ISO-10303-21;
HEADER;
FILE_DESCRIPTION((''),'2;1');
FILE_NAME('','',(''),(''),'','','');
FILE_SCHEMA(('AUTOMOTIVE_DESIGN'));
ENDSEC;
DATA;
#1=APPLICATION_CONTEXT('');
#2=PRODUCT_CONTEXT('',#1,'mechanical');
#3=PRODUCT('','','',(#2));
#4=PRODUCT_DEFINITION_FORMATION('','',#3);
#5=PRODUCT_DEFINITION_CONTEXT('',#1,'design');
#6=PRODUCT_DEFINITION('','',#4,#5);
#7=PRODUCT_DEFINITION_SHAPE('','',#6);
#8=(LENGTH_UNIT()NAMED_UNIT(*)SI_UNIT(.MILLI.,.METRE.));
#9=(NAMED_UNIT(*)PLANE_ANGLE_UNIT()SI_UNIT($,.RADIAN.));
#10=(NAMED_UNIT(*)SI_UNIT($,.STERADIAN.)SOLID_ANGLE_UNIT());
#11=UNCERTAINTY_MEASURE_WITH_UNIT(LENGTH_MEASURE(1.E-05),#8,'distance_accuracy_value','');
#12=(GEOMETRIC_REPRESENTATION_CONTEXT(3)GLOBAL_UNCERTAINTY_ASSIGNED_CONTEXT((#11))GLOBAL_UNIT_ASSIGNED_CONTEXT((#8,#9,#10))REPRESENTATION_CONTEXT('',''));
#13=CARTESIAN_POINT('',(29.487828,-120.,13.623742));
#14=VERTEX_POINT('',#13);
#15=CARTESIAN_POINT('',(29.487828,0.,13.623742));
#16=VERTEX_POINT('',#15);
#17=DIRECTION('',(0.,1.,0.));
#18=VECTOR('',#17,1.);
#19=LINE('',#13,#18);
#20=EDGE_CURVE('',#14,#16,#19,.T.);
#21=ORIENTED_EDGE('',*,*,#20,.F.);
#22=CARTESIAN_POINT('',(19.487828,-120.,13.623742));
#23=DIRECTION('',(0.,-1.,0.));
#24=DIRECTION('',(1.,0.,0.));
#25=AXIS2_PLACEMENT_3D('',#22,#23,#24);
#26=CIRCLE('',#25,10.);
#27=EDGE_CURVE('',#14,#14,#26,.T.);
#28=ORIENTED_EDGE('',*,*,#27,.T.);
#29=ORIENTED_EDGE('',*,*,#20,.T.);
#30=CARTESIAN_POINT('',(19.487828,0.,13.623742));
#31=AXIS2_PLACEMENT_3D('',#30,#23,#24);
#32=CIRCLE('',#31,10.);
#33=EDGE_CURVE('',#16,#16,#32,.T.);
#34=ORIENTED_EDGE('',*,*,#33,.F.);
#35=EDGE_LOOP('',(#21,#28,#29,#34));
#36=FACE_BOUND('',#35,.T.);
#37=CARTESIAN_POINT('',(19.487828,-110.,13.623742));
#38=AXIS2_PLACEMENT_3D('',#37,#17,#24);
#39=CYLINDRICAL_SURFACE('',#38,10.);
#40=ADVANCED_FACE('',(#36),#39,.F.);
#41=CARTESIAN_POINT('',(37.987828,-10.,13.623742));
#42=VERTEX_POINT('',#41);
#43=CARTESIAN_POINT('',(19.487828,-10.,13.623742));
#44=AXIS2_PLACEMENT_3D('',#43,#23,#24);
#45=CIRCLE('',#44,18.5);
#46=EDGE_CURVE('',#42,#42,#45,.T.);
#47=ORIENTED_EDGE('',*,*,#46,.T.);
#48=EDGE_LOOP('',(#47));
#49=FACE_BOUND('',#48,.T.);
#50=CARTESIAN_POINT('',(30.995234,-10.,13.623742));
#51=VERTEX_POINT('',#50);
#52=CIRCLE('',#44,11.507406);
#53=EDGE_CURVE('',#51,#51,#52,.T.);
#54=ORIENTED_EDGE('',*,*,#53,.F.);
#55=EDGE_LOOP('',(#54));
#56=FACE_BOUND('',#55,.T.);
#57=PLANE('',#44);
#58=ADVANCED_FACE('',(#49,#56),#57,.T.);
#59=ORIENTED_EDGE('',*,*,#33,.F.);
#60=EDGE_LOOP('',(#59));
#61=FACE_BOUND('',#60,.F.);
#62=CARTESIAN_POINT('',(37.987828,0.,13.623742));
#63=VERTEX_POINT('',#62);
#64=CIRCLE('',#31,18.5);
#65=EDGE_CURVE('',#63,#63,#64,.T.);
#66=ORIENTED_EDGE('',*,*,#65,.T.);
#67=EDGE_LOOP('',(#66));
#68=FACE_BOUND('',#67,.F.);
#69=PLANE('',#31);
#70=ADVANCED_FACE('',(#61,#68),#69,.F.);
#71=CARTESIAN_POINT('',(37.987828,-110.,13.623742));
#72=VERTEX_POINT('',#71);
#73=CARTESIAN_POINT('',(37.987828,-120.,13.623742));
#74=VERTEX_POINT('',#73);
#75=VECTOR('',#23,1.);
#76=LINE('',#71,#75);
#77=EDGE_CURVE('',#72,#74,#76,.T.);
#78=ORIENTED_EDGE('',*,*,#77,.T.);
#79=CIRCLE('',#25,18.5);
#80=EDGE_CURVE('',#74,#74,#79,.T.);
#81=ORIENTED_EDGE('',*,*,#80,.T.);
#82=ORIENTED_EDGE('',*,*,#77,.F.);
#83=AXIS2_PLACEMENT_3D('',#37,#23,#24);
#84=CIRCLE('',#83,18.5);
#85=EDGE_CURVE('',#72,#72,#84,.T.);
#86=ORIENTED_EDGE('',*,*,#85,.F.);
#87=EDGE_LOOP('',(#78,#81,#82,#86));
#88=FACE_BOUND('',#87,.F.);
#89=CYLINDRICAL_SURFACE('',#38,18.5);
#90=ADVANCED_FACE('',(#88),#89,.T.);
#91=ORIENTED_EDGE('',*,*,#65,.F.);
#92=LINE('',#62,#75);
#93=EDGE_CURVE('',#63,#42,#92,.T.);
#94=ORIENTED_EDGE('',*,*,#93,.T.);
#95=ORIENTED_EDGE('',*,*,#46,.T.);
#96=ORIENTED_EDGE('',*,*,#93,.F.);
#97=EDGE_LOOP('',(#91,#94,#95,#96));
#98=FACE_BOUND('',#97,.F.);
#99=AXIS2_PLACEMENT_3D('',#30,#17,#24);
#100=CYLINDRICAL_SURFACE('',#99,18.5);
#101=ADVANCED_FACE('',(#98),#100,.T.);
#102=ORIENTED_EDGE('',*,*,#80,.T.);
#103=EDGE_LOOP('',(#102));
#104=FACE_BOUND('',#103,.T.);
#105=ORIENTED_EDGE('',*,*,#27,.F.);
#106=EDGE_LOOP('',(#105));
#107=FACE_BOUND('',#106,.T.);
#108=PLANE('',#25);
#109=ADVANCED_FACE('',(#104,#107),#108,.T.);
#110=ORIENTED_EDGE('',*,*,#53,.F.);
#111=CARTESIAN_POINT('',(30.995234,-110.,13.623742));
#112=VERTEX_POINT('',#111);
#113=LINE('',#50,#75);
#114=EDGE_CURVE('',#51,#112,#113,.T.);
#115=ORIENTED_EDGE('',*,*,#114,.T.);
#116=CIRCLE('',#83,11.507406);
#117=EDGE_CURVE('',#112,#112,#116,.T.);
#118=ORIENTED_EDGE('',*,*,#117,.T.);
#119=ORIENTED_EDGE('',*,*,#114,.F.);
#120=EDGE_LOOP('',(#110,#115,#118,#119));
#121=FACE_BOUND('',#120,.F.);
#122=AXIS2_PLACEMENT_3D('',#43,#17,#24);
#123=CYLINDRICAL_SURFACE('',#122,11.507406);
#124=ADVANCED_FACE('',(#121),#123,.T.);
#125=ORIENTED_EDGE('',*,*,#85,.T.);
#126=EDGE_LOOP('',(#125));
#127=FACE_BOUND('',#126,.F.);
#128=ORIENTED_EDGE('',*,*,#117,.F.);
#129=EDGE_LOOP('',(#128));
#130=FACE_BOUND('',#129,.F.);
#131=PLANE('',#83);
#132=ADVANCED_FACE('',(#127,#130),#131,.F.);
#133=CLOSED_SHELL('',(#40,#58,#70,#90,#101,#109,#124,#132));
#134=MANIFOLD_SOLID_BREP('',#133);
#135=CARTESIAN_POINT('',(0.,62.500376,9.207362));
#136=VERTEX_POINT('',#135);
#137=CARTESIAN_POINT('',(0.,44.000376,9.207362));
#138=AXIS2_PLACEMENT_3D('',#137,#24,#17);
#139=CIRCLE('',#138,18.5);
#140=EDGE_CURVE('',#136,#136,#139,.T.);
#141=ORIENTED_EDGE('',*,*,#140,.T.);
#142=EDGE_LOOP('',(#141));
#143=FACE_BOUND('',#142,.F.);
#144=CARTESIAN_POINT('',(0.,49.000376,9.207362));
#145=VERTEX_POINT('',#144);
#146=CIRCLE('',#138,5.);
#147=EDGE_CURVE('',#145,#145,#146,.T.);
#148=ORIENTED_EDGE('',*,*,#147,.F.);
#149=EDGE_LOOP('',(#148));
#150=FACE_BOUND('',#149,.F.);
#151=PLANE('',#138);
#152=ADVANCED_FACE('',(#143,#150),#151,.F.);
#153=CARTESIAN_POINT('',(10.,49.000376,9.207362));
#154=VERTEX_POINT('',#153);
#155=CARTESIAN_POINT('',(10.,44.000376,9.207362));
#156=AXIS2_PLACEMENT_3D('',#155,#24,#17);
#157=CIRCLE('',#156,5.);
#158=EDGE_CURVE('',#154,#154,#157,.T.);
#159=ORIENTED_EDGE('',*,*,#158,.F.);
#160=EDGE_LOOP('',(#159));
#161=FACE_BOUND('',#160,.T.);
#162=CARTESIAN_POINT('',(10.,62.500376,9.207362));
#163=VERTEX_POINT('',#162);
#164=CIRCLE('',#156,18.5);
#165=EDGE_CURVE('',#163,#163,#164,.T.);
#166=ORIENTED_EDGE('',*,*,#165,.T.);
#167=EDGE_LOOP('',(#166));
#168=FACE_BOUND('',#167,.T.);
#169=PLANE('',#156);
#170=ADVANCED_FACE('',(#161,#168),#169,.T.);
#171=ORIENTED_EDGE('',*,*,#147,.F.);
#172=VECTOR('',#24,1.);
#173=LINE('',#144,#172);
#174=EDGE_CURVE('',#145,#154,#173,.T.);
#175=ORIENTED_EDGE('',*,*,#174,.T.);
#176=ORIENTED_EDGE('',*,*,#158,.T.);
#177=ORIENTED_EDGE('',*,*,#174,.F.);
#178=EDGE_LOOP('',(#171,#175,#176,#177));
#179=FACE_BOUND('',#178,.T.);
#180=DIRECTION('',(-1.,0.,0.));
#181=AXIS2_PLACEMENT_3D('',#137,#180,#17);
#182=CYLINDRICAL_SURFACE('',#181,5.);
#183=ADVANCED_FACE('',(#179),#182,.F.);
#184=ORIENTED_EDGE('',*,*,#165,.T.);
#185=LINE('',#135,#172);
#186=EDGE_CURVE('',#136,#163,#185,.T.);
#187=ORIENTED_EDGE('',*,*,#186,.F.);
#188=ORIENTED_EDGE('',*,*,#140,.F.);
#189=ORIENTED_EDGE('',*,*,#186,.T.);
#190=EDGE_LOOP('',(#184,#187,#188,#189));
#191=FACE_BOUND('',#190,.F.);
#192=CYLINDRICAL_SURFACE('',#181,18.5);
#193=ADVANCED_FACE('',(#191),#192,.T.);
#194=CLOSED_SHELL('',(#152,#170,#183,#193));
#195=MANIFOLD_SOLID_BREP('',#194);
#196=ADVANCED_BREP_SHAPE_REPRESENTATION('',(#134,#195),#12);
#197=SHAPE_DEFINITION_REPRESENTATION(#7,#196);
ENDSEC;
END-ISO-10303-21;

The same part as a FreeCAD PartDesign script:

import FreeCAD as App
import Part
import Sketcher
Q = App.Units.Quantity

doc = App.newDocument("Part")
body = doc.addObject("PartDesign::Body", "Body")

# Sketch on XZ plane
sketch1 = body.newObject("Sketcher::SketchObject", "Sketch")
sketch1.AttachmentSupport = (doc.getObject("XZ_Plane"), [""])
sketch1.MapMode = "FlatFace"
sketch1.addGeometry(Part.Circle(App.Vector(19, 14, 0), App.Vector(0, 0, 1), 18), False)
sketch1.addConstraint(Sketcher.Constraint("Diameter", 0, Q("37 mm")))
sketch1.addConstraint(Sketcher.Constraint("DistanceX", -1, 1, 0, 3, Q("19.487828 mm")))
sketch1.addConstraint(Sketcher.Constraint("DistanceY", -1, 1, 0, 3, Q("13.623742 mm")))
pad1 = body.newObject("PartDesign::Pad", "Pad")
pad1.Profile = sketch1
pad1.Length = 10

# Sketch on XZ plane
sketch2 = body.newObject("Sketcher::SketchObject", "Sketch001")
sketch2.AttachmentSupport = (doc.getObject("XZ_Plane"), [""])
sketch2.MapMode = "FlatFace"
sketch2.AttachmentOffset = App.Placement(App.Vector(0, 0, 10), App.Rotation())
sketch2.addGeometry(Part.Circle(App.Vector(19, 14, 0), App.Vector(0, 0, 1), 12), False)
sketch2.addConstraint(Sketcher.Constraint("Diameter", 0, Q("23.014813 mm")))
sketch2.addConstraint(Sketcher.Constraint("DistanceX", -1, 1, 0, 3, Q("19.487828 mm")))
sketch2.addConstraint(Sketcher.Constraint("DistanceY", -1, 1, 0, 3, Q("13.623742 mm")))
pad2 = body.newObject("PartDesign::Pad", "Pad001")
pad2.Profile = sketch2
pad2.Length = 100

# Sketch on XZ plane
sketch3 = body.newObject("Sketcher::SketchObject", "Sketch002")
sketch3.AttachmentSupport = (doc.getObject("XZ_Plane"), [""])
sketch3.MapMode = "FlatFace"
sketch3.addGeometry(Part.Circle(App.Vector(19, 14, 0), App.Vector(0, 0, 1), 10), False)
sketch3.addConstraint(Sketcher.Constraint("Diameter", 0, Q("20 mm")))
sketch3.addConstraint(Sketcher.Constraint("DistanceX", -1, 1, 0, 3, Q("19.487828 mm")))
sketch3.addConstraint(Sketcher.Constraint("DistanceY", -1, 1, 0, 3, Q("13.623742 mm")))
pocket1 = body.newObject("PartDesign::Pocket", "Pocket")
pocket1.Profile = sketch3
pocket1.Length = 120
pocket1.Reversed = True

# Sketch on XZ plane
sketch4 = body.newObject("Sketcher::SketchObject", "Sketch003")
sketch4.AttachmentSupport = (doc.getObject("XZ_Plane"), [""])
sketch4.MapMode = "FlatFace"
sketch4.AttachmentOffset = App.Placement(App.Vector(0, 0, 110), App.Rotation())
sketch4.addGeometry(Part.Circle(App.Vector(19, 14, 0), App.Vector(0, 0, 1), 18), False)
sketch4.addGeometry(Part.Circle(App.Vector(19, 14, 0), App.Vector(0, 0, 1), 10), False)
sketch4.addConstraint(Sketcher.Constraint("Coincident", 1, 3, 0, 3))
sketch4.addConstraint(Sketcher.Constraint("Diameter", 0, Q("37 mm")))
sketch4.addConstraint(Sketcher.Constraint("Diameter", 1, Q("20 mm")))
sketch4.addConstraint(Sketcher.Constraint("DistanceX", -1, 1, 0, 3, Q("19.487828 mm")))
sketch4.addConstraint(Sketcher.Constraint("DistanceY", -1, 1, 0, 3, Q("13.623742 mm")))
pad3 = body.newObject("PartDesign::Pad", "Pad002")
pad3.Profile = sketch4
pad3.Length = 10
body2 = doc.addObject("PartDesign::Body", "Body001")

# Sketch on YZ plane
sketch5 = body2.newObject("Sketcher::SketchObject", "Sketch004")
sketch5.AttachmentSupport = (doc.getObject("YZ_Plane001"), [""])
sketch5.MapMode = "FlatFace"
sketch5.addGeometry(Part.Circle(App.Vector(44, 9, 0), App.Vector(0, 0, 1), 18), False)
sketch5.addGeometry(Part.Circle(App.Vector(44, 9, 0), App.Vector(0, 0, 1), 5), False)
sketch5.addConstraint(Sketcher.Constraint("Coincident", 1, 3, 0, 3))
sketch5.addConstraint(Sketcher.Constraint("Diameter", 0, Q("37 mm")))
sketch5.addConstraint(Sketcher.Constraint("Diameter", 1, Q("10 mm")))
sketch5.addConstraint(Sketcher.Constraint("DistanceX", -1, 1, 0, 3, Q("44.000376 mm")))
sketch5.addConstraint(Sketcher.Constraint("DistanceY", -1, 1, 0, 3, Q("9.207362 mm")))
pad4 = body2.newObject("PartDesign::Pad", "Pad003")
pad4.Profile = sketch5
pad4.Length = 10

doc.recompute()
